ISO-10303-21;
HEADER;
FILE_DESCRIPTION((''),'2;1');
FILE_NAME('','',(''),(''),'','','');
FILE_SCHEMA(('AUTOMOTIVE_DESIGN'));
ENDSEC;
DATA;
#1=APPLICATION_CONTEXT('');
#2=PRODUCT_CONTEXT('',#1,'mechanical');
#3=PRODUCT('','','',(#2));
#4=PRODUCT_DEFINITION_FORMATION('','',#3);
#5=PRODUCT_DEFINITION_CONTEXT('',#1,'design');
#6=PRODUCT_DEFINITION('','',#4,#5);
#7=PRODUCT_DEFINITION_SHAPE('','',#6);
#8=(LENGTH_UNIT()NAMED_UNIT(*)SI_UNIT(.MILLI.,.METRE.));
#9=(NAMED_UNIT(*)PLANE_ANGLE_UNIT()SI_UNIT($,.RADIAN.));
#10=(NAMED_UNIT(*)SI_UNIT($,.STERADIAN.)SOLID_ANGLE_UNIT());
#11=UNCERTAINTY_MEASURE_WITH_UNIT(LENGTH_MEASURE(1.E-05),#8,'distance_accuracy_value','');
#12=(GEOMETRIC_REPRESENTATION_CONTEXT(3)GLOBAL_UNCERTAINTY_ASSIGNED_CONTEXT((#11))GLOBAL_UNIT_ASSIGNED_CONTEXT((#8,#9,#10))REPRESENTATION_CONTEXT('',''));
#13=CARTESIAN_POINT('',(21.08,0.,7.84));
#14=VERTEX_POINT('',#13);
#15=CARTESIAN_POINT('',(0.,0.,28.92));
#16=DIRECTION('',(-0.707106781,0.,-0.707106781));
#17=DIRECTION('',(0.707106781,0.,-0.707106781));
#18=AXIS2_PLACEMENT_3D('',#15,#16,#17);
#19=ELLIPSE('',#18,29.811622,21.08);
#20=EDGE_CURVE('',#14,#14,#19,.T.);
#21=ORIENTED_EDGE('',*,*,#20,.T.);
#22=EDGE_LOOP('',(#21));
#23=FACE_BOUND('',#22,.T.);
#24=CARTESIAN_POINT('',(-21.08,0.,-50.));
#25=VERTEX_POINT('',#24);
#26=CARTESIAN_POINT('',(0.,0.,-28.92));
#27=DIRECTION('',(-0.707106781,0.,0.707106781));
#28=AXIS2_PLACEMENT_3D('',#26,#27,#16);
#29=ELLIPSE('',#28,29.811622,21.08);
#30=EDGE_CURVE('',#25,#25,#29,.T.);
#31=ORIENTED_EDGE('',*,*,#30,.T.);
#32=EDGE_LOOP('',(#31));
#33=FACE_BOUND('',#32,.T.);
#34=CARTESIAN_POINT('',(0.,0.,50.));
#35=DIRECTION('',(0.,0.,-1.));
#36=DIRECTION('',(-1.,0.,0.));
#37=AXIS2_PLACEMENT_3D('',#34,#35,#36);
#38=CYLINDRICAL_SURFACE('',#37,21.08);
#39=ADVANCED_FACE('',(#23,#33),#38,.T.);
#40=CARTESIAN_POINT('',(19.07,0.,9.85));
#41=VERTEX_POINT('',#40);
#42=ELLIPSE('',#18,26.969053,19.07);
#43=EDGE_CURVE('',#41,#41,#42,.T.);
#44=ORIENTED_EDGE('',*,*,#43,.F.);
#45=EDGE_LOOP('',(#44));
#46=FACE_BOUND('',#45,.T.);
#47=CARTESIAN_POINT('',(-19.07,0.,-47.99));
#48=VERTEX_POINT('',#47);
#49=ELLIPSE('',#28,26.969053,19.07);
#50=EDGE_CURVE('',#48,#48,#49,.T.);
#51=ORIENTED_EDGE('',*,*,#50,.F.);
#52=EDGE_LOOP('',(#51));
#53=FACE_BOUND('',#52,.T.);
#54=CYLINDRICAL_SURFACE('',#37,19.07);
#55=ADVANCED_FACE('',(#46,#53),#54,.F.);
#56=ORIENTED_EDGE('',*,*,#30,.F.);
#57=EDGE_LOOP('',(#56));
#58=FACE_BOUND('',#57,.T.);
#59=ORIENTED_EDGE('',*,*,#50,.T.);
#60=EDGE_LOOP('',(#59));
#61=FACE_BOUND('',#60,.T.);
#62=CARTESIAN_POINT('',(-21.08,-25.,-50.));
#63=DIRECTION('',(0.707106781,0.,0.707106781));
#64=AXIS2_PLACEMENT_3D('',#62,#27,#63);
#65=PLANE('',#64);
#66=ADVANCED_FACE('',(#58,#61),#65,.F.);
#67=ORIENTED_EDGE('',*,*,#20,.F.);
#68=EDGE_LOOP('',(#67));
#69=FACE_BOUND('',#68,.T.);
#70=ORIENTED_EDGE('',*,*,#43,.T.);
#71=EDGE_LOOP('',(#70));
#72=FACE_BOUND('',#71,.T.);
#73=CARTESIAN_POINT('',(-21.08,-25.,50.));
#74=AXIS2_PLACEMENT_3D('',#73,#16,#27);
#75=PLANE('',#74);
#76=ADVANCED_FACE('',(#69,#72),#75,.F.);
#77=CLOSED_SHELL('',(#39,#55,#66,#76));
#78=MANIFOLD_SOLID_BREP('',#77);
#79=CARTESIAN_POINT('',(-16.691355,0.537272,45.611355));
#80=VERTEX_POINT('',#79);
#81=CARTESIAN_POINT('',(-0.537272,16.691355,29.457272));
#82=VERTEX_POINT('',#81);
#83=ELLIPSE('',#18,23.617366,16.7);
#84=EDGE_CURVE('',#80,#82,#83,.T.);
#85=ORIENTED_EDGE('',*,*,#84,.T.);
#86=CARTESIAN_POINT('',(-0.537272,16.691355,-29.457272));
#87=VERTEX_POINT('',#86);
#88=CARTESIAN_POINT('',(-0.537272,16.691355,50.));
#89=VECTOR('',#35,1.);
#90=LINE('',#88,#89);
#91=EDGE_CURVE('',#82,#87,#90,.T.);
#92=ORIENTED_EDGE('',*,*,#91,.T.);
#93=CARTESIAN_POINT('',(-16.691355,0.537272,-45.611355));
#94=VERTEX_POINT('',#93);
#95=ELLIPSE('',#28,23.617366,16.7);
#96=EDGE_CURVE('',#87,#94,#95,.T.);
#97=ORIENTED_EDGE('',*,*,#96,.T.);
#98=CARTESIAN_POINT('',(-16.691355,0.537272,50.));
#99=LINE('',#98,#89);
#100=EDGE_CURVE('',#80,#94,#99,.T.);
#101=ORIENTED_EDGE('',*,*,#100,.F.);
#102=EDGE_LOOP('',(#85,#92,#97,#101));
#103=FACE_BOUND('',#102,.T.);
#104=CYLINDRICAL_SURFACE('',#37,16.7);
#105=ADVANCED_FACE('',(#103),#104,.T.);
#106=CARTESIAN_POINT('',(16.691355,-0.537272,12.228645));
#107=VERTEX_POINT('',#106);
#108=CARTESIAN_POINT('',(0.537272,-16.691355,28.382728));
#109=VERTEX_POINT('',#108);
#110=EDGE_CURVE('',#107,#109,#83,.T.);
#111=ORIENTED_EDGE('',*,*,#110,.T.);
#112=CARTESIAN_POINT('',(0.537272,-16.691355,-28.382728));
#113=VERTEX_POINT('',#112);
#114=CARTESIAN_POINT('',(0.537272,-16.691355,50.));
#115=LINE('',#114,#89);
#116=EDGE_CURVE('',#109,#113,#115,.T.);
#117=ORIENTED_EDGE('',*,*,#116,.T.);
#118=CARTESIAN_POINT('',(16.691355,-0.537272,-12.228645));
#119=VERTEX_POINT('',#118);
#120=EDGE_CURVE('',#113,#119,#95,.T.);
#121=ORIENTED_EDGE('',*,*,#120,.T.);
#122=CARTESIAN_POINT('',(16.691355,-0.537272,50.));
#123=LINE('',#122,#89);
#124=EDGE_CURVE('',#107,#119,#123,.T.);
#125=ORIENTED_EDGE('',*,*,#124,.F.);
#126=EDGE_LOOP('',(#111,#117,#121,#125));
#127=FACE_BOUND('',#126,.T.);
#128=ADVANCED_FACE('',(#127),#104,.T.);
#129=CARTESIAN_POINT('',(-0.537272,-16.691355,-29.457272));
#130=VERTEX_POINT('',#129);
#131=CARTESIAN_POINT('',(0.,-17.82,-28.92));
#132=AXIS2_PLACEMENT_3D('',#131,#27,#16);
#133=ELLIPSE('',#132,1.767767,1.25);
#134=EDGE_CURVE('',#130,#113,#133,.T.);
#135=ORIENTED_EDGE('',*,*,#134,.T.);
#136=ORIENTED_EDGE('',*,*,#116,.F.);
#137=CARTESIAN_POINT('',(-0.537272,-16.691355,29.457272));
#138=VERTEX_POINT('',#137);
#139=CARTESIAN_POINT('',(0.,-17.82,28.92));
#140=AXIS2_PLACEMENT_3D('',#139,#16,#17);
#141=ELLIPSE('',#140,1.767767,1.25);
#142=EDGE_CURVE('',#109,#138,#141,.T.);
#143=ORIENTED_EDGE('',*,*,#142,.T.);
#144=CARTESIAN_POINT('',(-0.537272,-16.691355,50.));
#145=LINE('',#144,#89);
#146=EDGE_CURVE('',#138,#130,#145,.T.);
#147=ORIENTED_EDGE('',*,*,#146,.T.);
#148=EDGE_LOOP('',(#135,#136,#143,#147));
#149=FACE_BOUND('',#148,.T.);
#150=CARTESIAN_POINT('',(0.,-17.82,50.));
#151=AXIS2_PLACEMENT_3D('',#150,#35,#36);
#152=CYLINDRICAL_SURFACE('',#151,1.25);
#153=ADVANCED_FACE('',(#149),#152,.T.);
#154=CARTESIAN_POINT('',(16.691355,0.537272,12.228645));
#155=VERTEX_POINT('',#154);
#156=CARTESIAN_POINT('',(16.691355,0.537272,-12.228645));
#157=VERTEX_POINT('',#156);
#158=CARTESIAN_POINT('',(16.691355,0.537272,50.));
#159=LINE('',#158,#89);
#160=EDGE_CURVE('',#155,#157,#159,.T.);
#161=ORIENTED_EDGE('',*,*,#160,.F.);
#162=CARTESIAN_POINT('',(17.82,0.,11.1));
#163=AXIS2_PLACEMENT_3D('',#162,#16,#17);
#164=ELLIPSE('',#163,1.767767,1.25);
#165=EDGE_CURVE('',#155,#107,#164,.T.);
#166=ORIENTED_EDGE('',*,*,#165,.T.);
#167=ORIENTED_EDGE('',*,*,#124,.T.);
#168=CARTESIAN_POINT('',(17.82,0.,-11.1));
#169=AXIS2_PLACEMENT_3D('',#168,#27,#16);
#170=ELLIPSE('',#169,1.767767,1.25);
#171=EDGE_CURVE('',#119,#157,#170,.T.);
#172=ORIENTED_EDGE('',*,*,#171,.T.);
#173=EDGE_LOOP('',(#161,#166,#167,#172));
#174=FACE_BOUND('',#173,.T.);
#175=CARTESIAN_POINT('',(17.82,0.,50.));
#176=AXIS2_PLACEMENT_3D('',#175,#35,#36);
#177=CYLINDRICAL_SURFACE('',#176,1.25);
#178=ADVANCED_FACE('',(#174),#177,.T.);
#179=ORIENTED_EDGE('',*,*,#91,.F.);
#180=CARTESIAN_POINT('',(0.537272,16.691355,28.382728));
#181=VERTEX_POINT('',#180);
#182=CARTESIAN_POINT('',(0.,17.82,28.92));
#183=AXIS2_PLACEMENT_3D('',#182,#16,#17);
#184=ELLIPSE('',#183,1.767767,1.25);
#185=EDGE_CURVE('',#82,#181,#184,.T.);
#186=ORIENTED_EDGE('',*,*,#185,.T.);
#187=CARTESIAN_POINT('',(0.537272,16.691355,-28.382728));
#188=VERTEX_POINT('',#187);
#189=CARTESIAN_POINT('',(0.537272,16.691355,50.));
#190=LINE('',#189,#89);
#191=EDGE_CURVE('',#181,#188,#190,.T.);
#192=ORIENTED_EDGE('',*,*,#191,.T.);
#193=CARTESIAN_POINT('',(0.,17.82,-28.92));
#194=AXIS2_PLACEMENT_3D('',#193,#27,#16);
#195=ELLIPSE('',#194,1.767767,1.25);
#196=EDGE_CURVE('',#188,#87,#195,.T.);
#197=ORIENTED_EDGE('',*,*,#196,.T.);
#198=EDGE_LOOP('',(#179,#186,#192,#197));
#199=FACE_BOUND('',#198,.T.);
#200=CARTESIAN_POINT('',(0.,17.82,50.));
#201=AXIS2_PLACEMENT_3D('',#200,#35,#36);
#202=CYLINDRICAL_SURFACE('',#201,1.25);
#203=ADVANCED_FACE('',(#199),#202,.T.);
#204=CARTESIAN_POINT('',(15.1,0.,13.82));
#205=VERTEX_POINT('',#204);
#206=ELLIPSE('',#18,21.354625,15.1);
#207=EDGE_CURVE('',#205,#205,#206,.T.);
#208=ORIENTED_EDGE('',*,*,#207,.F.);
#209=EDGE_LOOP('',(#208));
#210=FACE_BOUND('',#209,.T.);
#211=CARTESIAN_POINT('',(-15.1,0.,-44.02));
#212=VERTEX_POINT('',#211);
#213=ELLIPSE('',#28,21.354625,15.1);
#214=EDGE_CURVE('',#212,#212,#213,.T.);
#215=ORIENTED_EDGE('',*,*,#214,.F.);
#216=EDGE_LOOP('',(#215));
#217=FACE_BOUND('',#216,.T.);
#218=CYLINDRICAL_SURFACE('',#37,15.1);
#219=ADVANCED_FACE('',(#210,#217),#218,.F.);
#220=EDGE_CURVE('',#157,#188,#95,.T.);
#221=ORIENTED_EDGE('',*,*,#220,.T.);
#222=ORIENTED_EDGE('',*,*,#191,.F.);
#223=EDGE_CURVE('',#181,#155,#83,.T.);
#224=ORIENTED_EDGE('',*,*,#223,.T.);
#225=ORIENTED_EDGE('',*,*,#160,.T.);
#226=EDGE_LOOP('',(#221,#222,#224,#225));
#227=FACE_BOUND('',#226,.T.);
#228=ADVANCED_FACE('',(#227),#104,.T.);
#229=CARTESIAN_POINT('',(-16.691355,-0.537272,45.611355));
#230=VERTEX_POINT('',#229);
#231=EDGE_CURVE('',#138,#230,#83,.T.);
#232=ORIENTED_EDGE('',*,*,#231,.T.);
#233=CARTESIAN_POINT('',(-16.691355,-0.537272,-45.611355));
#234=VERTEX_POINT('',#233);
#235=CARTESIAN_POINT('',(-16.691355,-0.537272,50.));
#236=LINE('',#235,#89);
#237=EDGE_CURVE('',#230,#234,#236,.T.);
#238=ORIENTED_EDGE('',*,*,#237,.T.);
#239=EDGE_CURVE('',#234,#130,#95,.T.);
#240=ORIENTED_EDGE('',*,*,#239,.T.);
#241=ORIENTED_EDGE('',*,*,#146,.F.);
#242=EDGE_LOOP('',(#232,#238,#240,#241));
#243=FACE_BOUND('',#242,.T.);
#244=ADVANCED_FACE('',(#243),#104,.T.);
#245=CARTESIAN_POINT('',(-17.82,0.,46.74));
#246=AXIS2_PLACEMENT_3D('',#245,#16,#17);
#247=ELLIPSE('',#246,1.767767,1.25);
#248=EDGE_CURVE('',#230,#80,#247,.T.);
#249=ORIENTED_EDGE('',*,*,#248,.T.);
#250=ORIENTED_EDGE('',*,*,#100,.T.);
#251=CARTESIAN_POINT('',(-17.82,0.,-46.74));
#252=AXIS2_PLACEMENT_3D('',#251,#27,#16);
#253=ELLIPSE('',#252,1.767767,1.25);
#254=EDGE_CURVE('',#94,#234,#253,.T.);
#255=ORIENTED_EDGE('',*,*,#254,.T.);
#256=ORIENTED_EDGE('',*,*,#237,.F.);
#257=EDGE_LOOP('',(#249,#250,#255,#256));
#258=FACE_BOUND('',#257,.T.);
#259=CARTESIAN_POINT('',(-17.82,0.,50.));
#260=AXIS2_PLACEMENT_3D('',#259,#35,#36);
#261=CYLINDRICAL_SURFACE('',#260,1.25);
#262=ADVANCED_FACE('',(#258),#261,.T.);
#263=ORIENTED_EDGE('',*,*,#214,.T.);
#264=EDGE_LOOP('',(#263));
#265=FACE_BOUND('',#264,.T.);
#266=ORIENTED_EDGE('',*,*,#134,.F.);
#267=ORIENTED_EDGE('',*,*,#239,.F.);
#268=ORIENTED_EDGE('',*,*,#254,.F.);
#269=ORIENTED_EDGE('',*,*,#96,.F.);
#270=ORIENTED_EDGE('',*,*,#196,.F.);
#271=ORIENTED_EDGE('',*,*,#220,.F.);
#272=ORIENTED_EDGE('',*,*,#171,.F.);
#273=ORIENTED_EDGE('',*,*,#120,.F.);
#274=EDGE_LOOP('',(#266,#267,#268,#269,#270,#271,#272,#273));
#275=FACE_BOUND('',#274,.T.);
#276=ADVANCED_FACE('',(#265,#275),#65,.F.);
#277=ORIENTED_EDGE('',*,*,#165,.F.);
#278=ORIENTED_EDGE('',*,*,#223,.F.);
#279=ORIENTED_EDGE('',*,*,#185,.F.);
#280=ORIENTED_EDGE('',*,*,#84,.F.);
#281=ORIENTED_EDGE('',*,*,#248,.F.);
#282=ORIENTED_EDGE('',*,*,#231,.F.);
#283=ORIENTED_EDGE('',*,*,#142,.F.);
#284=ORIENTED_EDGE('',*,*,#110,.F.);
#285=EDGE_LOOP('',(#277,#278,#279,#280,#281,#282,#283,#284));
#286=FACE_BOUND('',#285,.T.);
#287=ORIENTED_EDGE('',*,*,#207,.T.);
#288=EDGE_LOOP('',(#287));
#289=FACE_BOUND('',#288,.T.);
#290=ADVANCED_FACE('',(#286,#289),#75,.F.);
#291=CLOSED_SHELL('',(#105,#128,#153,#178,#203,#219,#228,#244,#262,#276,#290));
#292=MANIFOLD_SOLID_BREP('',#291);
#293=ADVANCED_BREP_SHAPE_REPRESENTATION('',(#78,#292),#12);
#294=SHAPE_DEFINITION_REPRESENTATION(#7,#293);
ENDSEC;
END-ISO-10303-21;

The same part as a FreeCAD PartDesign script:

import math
import FreeCAD as App
import Part
import Sketcher


def add_polygon(sketch, points):
    """Adds a closed chain of lines whose ends are joined by coincident constraints."""
    first, n = sketch.GeometryCount, len(points)
    for a, b in zip(points, points[1:] + points[:1]):
        sketch.addGeometry(Part.LineSegment(App.Vector(*a, 0), App.Vector(*b, 0)), False)
    for i in range(n):
        sketch.addConstraint(Sketcher.Constraint("Coincident", first + i, 2, first + (i + 1) % n, 1))

doc = App.newDocument("Part")
params = doc.addObject("Spreadsheet::Sheet", "Params")
for row, (alias, value) in enumerate([
    ("sketch1_diameter", "42.16 mm"),
    ("sketch1_radius", "19.070001 mm"),
    ("pad1_length", "100 mm"),
    ("sketch2_diameter", "30.2 mm"),
    ("sketch2_radius", "16.7 mm"),
    ("sketch2_radius2", "1.25 mm"),
    ("pad2_length", "100 mm"),
    ("sketch3_width", "42.16 mm"),
    ("pad3_length", "42.16 mm"),
], start=1):
    params.set(f"A{row}", alias)
    params.set(f"B{row}", "=" + value)
    params.setAlias(f"B{row}", alias)

body = doc.addObject("PartDesign::Body", "Body")

# Sketch on XY plane
sketch1 = doc.addObject("Sketcher::SketchObject", "Sketch")
body.addObject(sketch1)
sketch1.AttachmentSupport = (doc.XY_Plane, [""])
sketch1.MapMode = "FlatFace"
sketch1.addGeometry([
    Part.Circle(App.Vector(0, 0, 0), App.Vector(0, 0, 1), 21.08),  # 0
    Part.ArcOfCircle(Part.Circle(App.Vector(-0.000001, -0.000001, 0), App.Vector(0, 0, 1), 19.070001), math.radians(0.000003), math.radians(89.999997)),  # 1
    Part.ArcOfCircle(Part.Circle(App.Vector(-0.000001, 0.000001, 0), App.Vector(0, 0, 1), 19.070001), math.radians(-89.999997), math.radians(-0.000003)),  # 2
    Part.ArcOfCircle(Part.Circle(App.Vector(0.000001, 0.000001, 0), App.Vector(0, 0, 1), 19.070001), math.radians(-179.999997), math.radians(-90.000003)),  # 3
    Part.ArcOfCircle(Part.Circle(App.Vector(0.000001, -0.000001, 0), App.Vector(0, 0, 1), 19.070001), math.radians(90.000003), math.radians(179.999997)),  # 4
], False)
sketch1.addConstraint([
    Sketcher.Constraint("Tangent", 1, 1, 2, 2),
    Sketcher.Constraint("Tangent", 2, 1, 3, 2),
    Sketcher.Constraint("Tangent", 3, 1, 4, 2),
    Sketcher.Constraint("Tangent", 4, 1, 1, 2),
    Sketcher.Constraint("Coincident", 0, 3, -1, 1),
    Sketcher.Constraint("Coincident", 1, 3, -1, 1),
    Sketcher.Constraint("Equal", 1, 2),
    Sketcher.Constraint("PointOnObject", 1, 1, -1),
    Sketcher.Constraint("PointOnObject", 2, 1, -2),
    Sketcher.Constraint("PointOnObject", 3, 1, -1),
    Sketcher.Constraint("PointOnObject", 4, 1, -2),
    Sketcher.Constraint("Diameter", 0, 42.16),
    Sketcher.Constraint("Radius", 1, 19.070001),
])
sketch1.setExpression("Constraints[11]", "Params.sketch1_diameter")
sketch1.setExpression("Constraints[12]", "Params.sketch1_radius")
pad1 = doc.addObject("PartDesign::Pad", "Pad")
body.addObject(pad1)
pad1.Profile = sketch1
pad1.setExpression("Length", "Params.pad1_length")
pad1.Midplane = True
body2 = doc.addObject("PartDesign::Body", "Body001")

# Sketch on XY plane
sketch2 = doc.addObject("Sketcher::SketchObject", "Sketch001")
body2.addObject(sketch2)
sketch2.AttachmentSupport = (doc.getObject("XY_Plane001"), [""])
sketch2.MapMode = "FlatFace"
sketch2.addGeometry([
    Part.ArcOfCircle(Part.Circle(App.Vector(17.82, 0, 0), App.Vector(0, 0, 1), 1.25), math.radians(-154.544018), math.radians(0)),  # 0
    Part.ArcOfCircle(Part.Circle(App.Vector(17.82, 0, 0), App.Vector(0, 0, 1), 1.25), math.radians(0), math.radians(154.544018)),  # 1
    Part.ArcOfCircle(Part.Circle(App.Vector(0, 0, 0), App.Vector(0, 0, 1), 16.7), math.radians(1.843638), math.radians(88.156362)),  # 2
    Part.ArcOfCircle(Part.Circle(App.Vector(0, 17.82, 0), App.Vector(0, 0, 1), 1.25), math.radians(-64.544018), math.radians(90)),  # 3
    Part.ArcOfCircle(Part.Circle(App.Vector(0, 17.82, 0), App.Vector(0, 0, 1), 1.25), math.radians(90), math.radians(244.544018)),  # 4
    Part.ArcOfCircle(Part.Circle(App.Vector(0, 0, 0), App.Vector(0, 0, 1), 16.7), math.radians(91.843638), math.radians(178.156362)),  # 5
    Part.ArcOfCircle(Part.Circle(App.Vector(-17.82, 0, 0), App.Vector(0, 0, 1), 1.25), math.radians(25.455982), math.radians(180)),  # 6
    Part.ArcOfCircle(Part.Circle(App.Vector(-17.82, 0, 0), App.Vector(0, 0, 1), 1.25), math.radians(-180), math.radians(-25.455982)),  # 7
    Part.ArcOfCircle(Part.Circle(App.Vector(0, 0, 0), App.Vector(0, 0, 1), 16.7), math.radians(-178.156362), math.radians(-91.843638)),  # 8
    Part.ArcOfCircle(Part.Circle(App.Vector(0, -17.82, 0), App.Vector(0, 0, 1), 1.25), math.radians(115.455982), math.radians(270)),  # 9
    Part.ArcOfCircle(Part.Circle(App.Vector(0, -17.82, 0), App.Vector(0, 0, 1), 1.25), math.radians(-90), math.radians(64.544018)),  # 10
    Part.ArcOfCircle(Part.Circle(App.Vector(0, 0, 0), App.Vector(0, 0, 1), 16.7), math.radians(-88.156362), math.radians(-1.843638)),  # 11
    Part.Circle(App.Vector(0, 0, 0), App.Vector(0, 0, 1), 15.1),  # 12
], False)
sketch2.addConstraint([
    Sketcher.Constraint("Tangent", 0, 2, 1, 1),
    Sketcher.Constraint("Coincident", 1, 2, 2, 1),
    Sketcher.Constraint("Coincident", 2, 2, 3, 1),
    Sketcher.Constraint("Tangent", 3, 2, 4, 1),
    Sketcher.Constraint("Coincident", 4, 2, 5, 1),
    Sketcher.Constraint("Coincident", 5, 2, 6, 1),
    Sketcher.Constraint("Tangent", 6, 2, 7, 1),
    Sketcher.Constraint("Coincident", 7, 2, 8, 1),
    Sketcher.Constraint("Coincident", 8, 2, 9, 1),
    Sketcher.Constraint("Tangent", 9, 2, 10, 1),
    Sketcher.Constraint("Coincident", 10, 2, 11, 1),
    Sketcher.Constraint("Coincident", 11, 2, 0, 1),
    Sketcher.Constraint("Coincident", 2, 3, -1, 1),
    Sketcher.Constraint("Coincident", 5, 3, -1, 1),
    Sketcher.Constraint("Coincident", 8, 3, -1, 1),
    Sketcher.Constraint("Coincident", 11, 3, -1, 1),
    Sketcher.Constraint("Coincident", 12, 3, -1, 1),
    Sketcher.Constraint("Equal", 0, 1),
    Sketcher.Constraint("Equal", 1, 3),
    Sketcher.Constraint("Equal", 3, 4),
    Sketcher.Constraint("Equal", 2, 5),
    Sketcher.Constraint("Equal", 4, 6),
    Sketcher.Constraint("Equal", 6, 7),
    Sketcher.Constraint("Equal", 5, 8),
    Sketcher.Constraint("Equal", 7, 9),
    Sketcher.Constraint("Equal", 9, 10),
    Sketcher.Constraint("Equal", 8, 11),
    Sketcher.Constraint("Symmetric", 0, 3, 6, 3, -1, 1),
    Sketcher.Constraint("Symmetric", 3, 3, 9, 3, -1, 1),
    Sketcher.Constraint("PointOnObject", 0, 3, -1),
    Sketcher.Constraint("PointOnObject", 3, 3, -2),
    Sketcher.Constraint("PointOnObject", 0, 2, -1),
    Sketcher.Constraint("PointOnObject", 3, 2, -2),
    Sketcher.Constraint("PointOnObject", 6, 2, -1),
    Sketcher.Constraint("PointOnObject", 9, 2, -2),
    Sketcher.Constraint("Diameter", 12, 30.2),
    Sketcher.Constraint("Radius", 2, 16.7),
    Sketcher.Constraint("Radius", 0, 1.25),
    Sketcher.Constraint("DistanceX", -1, 1, 0, 3, 17.82),
    Sketcher.Constraint("DistanceY", -1, 1, 3, 3, 17.82),
])
sketch2.setExpression("Constraints[35]", "Params.sketch2_diameter")
sketch2.setExpression("Constraints[36]", "Params.sketch2_radius")
sketch2.setExpression("Constraints[37]", "Params.sketch2_radius2")
pad2 = doc.addObject("PartDesign::Pad", "Pad001")
body2.addObject(pad2)
pad2.Profile = sketch2
pad2.setExpression("Length", "Params.pad2_length")
pad2.Midplane = True
body3 = doc.addObject("PartDesign::Body", "Body002")
body3.AllowCompound = True

# Sketch on XZ plane
sketch3 = doc.addObject("Sketcher::SketchObject", "Sketch002")
body3.addObject(sketch3)
sketch3.AttachmentSupport = (doc.getObject("XZ_Plane002"), [""])
sketch3.MapMode = "FlatFace"
sketch3.AttachmentOffset = App.Placement(App.Vector(0, 0, 21.08), App.Rotation())
add_polygon(sketch3, [(21.08, -50), (-21.08, -50), (21.08, -7.84)])  # lines 0-2
add_polygon(sketch3, [(-21.08, 50), (21.08, 50), (21.08, 7.84)])  # lines 3-5
sketch3.addConstraint([
    Sketcher.Constraint("Horizontal", 0),
    Sketcher.Constraint("Vertical", 2),
    Sketcher.Constraint("Horizontal", 3),
    Sketcher.Constraint("Vertical", 4),
    Sketcher.Constraint("Symmetric", 0, 2, 3, 2, -1, 1),
    Sketcher.Constraint("Symmetric", 1, 2, 4, 2, -1),
    Sketcher.Constraint("Perpendicular", 1, 5),
    Sketcher.Constraint("Vertical", 0, 2, 5, 2),
    Sketcher.Constraint("DistanceY", 0, 2, -1, 1, 50.0),
    Sketcher.Constraint("DistanceX", 0, 2, 0, 1, 42.16),
])
sketch3.setExpression("Constraints[15]", "Params.sketch3_width")
pad3 = doc.addObject("PartDesign::Pad", "Pad002")
body3.addObject(pad3)
pad3.Profile = sketch3
pad3.setExpression("Length", "Params.pad3_length")
pad3.Reversed = True
doc.recompute()

body4 = doc.addObject("PartDesign::Body", "Body003")
body4.BaseFeature = body3
boolean = doc.addObject("PartDesign::Boolean", "Boolean")
body.addObject(boolean)
boolean.Type = "Cut"
boolean.addObjects([body4])
doc.recompute()

boolean2 = doc.addObject("PartDesign::Boolean", "Boolean001")
body2.addObject(boolean2)
boolean2.Type = "Cut"
boolean2.addObjects([body3])

doc.recompute()
